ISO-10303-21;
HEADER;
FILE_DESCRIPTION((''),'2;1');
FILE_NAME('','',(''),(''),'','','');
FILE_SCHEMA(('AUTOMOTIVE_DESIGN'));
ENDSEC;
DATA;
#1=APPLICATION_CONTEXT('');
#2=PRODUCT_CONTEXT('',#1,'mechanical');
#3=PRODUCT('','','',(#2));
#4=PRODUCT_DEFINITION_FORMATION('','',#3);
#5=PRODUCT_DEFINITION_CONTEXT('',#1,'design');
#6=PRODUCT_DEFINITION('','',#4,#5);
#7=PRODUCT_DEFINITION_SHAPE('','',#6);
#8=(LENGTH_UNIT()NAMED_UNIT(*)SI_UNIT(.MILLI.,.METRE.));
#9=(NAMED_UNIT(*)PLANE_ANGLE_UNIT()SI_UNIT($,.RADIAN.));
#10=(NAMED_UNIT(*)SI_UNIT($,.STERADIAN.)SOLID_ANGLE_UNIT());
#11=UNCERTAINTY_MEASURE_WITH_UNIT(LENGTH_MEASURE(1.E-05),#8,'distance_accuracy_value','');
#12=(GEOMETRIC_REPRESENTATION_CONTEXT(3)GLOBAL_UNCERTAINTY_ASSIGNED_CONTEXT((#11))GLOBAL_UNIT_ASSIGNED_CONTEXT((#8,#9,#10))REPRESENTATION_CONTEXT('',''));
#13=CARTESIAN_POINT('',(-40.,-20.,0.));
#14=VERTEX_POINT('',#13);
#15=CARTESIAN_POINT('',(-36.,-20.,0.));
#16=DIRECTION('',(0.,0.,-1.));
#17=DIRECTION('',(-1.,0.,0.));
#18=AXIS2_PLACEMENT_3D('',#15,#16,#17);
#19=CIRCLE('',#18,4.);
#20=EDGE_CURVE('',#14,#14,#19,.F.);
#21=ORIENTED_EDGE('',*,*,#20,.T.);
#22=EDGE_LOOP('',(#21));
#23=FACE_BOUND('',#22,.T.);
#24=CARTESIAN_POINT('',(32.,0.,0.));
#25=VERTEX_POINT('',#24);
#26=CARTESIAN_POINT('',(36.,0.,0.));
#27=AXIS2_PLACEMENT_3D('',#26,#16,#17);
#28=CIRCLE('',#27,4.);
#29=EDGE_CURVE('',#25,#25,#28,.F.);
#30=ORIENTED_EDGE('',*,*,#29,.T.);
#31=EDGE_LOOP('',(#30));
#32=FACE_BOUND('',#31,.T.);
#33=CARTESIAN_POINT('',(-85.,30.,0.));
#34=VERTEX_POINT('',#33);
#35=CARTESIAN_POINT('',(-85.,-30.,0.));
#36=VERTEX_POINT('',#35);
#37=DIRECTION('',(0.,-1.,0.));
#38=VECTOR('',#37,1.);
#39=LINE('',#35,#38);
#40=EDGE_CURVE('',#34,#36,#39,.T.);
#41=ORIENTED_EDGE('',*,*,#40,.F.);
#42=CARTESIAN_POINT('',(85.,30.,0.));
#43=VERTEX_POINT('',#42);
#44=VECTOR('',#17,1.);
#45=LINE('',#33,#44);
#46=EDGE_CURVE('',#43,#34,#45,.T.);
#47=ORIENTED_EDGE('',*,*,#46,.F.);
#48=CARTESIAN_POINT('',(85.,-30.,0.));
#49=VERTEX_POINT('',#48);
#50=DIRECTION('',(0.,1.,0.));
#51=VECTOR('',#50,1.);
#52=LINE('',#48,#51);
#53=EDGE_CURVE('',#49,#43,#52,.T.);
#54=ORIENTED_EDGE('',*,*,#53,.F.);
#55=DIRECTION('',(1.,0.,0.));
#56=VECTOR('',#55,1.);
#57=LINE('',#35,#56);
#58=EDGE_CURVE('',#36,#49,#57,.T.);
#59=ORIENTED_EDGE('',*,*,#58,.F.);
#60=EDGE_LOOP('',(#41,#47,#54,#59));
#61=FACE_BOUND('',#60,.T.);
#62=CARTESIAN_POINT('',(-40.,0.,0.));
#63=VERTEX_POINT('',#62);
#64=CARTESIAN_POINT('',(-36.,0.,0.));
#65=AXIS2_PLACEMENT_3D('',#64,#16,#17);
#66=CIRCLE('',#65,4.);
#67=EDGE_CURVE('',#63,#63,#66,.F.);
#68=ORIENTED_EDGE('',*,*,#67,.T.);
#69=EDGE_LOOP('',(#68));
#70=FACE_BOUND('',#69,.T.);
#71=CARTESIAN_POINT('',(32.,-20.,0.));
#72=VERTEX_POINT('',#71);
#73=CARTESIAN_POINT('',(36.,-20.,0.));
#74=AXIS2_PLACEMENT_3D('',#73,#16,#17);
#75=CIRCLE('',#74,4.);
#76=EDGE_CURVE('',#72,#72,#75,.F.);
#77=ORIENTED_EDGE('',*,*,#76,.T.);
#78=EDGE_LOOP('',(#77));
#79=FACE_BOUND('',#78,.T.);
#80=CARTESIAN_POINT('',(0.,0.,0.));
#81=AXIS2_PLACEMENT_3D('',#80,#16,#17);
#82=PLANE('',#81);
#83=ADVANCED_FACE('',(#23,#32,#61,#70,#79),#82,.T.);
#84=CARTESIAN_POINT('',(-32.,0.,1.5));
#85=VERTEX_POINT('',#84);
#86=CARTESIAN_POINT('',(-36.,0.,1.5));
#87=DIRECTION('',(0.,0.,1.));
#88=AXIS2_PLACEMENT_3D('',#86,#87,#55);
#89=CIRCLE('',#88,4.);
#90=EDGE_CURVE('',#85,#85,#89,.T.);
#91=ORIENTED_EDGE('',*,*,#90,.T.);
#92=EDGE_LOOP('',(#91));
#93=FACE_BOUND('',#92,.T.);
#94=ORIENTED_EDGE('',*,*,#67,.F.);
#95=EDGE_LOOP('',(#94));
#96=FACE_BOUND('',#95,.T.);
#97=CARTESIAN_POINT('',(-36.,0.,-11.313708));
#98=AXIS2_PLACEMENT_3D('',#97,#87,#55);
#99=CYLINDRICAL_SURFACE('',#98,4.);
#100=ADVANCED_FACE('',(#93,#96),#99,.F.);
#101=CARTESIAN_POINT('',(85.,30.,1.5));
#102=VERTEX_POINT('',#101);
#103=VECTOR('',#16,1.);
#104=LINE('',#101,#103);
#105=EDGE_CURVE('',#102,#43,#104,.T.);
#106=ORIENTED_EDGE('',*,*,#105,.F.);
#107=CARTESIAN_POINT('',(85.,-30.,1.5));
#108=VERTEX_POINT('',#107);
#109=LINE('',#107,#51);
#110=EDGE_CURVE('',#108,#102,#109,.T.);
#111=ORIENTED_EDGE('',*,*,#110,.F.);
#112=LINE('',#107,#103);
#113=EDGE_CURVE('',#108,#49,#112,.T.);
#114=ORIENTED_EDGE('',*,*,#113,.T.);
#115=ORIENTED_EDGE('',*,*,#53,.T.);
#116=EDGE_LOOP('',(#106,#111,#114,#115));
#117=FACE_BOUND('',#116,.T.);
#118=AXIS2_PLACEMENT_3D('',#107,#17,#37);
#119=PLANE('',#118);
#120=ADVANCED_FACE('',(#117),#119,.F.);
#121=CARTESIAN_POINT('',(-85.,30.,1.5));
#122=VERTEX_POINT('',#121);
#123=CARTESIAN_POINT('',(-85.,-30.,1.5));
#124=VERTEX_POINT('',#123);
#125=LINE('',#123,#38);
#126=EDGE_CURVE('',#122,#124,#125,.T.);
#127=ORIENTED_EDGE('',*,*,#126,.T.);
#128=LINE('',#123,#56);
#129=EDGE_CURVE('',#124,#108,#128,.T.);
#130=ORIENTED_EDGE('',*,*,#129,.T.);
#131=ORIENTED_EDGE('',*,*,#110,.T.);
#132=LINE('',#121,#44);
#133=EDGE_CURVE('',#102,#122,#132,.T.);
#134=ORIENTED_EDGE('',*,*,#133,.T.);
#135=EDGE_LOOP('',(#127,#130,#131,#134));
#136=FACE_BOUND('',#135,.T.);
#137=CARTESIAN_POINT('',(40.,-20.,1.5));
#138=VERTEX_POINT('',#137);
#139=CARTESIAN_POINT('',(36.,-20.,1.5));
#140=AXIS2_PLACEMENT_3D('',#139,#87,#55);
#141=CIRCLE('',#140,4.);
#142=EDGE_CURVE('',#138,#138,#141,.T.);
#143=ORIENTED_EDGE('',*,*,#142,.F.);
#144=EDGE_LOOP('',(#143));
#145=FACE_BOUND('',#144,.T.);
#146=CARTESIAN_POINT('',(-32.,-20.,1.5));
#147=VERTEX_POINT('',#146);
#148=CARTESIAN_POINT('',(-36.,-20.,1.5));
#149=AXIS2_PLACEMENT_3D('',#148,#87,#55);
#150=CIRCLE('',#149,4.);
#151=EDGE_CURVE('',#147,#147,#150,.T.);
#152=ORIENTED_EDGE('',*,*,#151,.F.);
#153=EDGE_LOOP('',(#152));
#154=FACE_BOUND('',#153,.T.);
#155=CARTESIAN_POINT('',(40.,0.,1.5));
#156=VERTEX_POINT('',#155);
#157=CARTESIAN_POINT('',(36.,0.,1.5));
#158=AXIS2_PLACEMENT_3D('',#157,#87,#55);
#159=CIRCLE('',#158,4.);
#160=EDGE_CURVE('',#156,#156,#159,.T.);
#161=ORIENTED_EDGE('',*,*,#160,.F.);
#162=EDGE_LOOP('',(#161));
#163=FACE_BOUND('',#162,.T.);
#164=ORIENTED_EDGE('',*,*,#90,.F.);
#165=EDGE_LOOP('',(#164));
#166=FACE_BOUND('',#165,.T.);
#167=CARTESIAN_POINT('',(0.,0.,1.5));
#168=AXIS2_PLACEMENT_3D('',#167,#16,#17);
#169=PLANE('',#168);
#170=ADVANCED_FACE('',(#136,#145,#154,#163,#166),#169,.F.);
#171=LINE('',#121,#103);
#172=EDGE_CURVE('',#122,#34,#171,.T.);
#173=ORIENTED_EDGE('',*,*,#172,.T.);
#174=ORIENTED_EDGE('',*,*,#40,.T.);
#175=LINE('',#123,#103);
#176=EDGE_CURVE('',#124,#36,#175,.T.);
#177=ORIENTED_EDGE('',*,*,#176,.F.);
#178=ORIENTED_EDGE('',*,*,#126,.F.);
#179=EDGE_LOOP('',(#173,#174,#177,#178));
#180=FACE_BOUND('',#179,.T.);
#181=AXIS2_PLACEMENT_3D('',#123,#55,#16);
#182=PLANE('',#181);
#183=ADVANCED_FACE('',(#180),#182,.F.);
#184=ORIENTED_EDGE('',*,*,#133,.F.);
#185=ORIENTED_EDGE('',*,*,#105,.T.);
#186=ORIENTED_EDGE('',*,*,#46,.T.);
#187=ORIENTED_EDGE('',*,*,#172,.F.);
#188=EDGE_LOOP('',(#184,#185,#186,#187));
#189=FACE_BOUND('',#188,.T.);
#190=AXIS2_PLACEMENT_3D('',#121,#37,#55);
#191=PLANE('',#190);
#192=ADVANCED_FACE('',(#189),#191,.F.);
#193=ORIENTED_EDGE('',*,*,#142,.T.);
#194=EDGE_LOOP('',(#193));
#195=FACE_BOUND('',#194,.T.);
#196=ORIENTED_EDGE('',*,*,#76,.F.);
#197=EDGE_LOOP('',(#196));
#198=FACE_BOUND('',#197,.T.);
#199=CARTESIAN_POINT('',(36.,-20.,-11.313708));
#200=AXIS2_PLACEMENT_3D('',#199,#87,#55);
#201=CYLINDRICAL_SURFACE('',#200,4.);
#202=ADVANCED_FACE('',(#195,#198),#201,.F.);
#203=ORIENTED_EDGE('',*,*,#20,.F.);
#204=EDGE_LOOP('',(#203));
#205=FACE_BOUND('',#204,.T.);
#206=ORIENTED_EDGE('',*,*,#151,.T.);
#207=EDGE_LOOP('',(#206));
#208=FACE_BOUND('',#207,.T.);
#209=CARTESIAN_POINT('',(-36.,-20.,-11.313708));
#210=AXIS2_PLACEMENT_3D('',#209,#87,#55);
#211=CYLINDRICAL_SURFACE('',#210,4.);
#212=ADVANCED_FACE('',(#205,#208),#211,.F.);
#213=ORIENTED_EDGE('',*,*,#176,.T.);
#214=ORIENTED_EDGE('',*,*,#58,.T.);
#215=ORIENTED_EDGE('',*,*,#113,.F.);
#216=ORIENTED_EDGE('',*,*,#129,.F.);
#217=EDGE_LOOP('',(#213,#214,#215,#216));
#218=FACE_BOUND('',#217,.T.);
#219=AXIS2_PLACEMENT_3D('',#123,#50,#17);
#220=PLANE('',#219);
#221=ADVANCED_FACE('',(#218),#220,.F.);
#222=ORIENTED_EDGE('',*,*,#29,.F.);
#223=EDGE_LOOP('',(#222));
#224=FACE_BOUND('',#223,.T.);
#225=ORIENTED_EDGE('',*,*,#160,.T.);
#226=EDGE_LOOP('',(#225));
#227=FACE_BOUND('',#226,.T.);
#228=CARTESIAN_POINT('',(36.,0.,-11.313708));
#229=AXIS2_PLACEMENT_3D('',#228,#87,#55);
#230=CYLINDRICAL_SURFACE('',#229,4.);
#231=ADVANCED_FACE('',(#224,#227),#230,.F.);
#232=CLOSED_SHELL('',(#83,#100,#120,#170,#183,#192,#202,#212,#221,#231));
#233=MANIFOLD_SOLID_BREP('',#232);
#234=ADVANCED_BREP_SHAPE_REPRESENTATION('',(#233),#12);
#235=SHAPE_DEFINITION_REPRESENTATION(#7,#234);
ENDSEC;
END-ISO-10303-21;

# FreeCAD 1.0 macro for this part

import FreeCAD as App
import Part
import Sketcher
from FreeCAD import Vector

doc = App.newDocument("Part")
params = doc.addObject("Spreadsheet::Sheet", "Params")
for row, (alias, value) in enumerate([
    ("sketch1_width", "170 mm"),
    ("sketch1_height", "60 mm"),
    ("pad1_length", "1.5 mm"),
    ("sketch2_diameter", "8 mm"),
    ("pocket1_length", "1.5 mm"),
], start=1):
    params.set(f"A{row}", alias)
    params.set(f"B{row}", "=" + value)
    params.setAlias(f"B{row}", alias)

body = doc.addObject("PartDesign::Body", "Body")

# Sketch on XY plane
sketch1 = body.newObject("Sketcher::SketchObject", "Sketch")
sketch1.AttachmentSupport = (doc.getObject("XY_Plane"), [""])
sketch1.MapMode = "FlatFace"
sketch1.addGeometry([
    Part.LineSegment(Vector(-85, 30, 0), Vector(-85, -30, 0)),
    Part.LineSegment(Vector(-85, -30, 0), Vector(85, -30, 0)),
    Part.LineSegment(Vector(85, -30, 0), Vector(85, 30, 0)),
    Part.LineSegment(Vector(85, 30, 0), Vector(-85, 30, 0)),
], False)
sketch1.addConstraint([
    Sketcher.Constraint("Coincident", 0, 2, 1, 1),
    Sketcher.Constraint("Coincident", 1, 2, 2, 1),
    Sketcher.Constraint("Coincident", 2, 2, 3, 1),
    Sketcher.Constraint("Coincident", 3, 2, 0, 1),
    Sketcher.Constraint("Vertical", 0),
    Sketcher.Constraint("Horizontal", 1),
    Sketcher.Constraint("Vertical", 2),
    Sketcher.Constraint("Horizontal", 3),
    Sketcher.Constraint("Symmetric", 0, 2, 2, 2, -1, 1),
    Sketcher.Constraint("DistanceX", 1, 1, 1, 2, 170.0),
    Sketcher.Constraint("DistanceY", 0, 2, 0, 1, 60.0),
])
sketch1.setExpression("Constraints[9]", "Params.sketch1_width")
sketch1.setExpression("Constraints[10]", "Params.sketch1_height")
pad1 = body.newObject("PartDesign::Pad", "Pad")
pad1.Profile = sketch1
pad1.setExpression("Length", "Params.pad1_length")

# Sketch on XY plane
sketch2 = body.newObject("Sketcher::SketchObject", "Sketch001")
sketch2.AttachmentSupport = (doc.getObject("XY_Plane"), [""])
sketch2.MapMode = "FlatFace"
sketch2.AttachmentOffset = App.Placement(Vector(0, 0, 1.5), App.Rotation())
sketch2.addGeometry([
    Part.Circle(Vector(-36, -20, 0), Vector(0, 0, 1), 4),
    Part.Circle(Vector(-36, 0, 0), Vector(0, 0, 1), 4),
    Part.Circle(Vector(36, -20, 0), Vector(0, 0, 1), 4),
    Part.Circle(Vector(36, 0, 0), Vector(0, 0, 1), 4),
], False)
sketch2.addConstraint([
    Sketcher.Constraint("Equal", 0, 1),
    Sketcher.Constraint("Equal", 1, 2),
    Sketcher.Constraint("Equal", 2, 3),
    Sketcher.Constraint("Symmetric", 1, 3, 3, 3, -1, 1),
    Sketcher.Constraint("Symmetric", 0, 3, 2, 3, -2),
    Sketcher.Constraint("PointOnObject", 1, 3, -1),
    Sketcher.Constraint("Vertical", 0, 3, 1, 3),
    Sketcher.Constraint("Diameter", 0, 8.0),
    Sketcher.Constraint("DistanceX", 0, 3, -1, 1, 36.0),
    Sketcher.Constraint("DistanceY", 0, 3, -1, 1, 20.0),
])
sketch2.setExpression("Constraints[7]", "Params.sketch2_diameter")
pocket1 = body.newObject("PartDesign::Pocket", "Pocket")
pocket1.Profile = sketch2
pocket1.setExpression("Length", "Params.pocket1_length")

doc.recompute()
